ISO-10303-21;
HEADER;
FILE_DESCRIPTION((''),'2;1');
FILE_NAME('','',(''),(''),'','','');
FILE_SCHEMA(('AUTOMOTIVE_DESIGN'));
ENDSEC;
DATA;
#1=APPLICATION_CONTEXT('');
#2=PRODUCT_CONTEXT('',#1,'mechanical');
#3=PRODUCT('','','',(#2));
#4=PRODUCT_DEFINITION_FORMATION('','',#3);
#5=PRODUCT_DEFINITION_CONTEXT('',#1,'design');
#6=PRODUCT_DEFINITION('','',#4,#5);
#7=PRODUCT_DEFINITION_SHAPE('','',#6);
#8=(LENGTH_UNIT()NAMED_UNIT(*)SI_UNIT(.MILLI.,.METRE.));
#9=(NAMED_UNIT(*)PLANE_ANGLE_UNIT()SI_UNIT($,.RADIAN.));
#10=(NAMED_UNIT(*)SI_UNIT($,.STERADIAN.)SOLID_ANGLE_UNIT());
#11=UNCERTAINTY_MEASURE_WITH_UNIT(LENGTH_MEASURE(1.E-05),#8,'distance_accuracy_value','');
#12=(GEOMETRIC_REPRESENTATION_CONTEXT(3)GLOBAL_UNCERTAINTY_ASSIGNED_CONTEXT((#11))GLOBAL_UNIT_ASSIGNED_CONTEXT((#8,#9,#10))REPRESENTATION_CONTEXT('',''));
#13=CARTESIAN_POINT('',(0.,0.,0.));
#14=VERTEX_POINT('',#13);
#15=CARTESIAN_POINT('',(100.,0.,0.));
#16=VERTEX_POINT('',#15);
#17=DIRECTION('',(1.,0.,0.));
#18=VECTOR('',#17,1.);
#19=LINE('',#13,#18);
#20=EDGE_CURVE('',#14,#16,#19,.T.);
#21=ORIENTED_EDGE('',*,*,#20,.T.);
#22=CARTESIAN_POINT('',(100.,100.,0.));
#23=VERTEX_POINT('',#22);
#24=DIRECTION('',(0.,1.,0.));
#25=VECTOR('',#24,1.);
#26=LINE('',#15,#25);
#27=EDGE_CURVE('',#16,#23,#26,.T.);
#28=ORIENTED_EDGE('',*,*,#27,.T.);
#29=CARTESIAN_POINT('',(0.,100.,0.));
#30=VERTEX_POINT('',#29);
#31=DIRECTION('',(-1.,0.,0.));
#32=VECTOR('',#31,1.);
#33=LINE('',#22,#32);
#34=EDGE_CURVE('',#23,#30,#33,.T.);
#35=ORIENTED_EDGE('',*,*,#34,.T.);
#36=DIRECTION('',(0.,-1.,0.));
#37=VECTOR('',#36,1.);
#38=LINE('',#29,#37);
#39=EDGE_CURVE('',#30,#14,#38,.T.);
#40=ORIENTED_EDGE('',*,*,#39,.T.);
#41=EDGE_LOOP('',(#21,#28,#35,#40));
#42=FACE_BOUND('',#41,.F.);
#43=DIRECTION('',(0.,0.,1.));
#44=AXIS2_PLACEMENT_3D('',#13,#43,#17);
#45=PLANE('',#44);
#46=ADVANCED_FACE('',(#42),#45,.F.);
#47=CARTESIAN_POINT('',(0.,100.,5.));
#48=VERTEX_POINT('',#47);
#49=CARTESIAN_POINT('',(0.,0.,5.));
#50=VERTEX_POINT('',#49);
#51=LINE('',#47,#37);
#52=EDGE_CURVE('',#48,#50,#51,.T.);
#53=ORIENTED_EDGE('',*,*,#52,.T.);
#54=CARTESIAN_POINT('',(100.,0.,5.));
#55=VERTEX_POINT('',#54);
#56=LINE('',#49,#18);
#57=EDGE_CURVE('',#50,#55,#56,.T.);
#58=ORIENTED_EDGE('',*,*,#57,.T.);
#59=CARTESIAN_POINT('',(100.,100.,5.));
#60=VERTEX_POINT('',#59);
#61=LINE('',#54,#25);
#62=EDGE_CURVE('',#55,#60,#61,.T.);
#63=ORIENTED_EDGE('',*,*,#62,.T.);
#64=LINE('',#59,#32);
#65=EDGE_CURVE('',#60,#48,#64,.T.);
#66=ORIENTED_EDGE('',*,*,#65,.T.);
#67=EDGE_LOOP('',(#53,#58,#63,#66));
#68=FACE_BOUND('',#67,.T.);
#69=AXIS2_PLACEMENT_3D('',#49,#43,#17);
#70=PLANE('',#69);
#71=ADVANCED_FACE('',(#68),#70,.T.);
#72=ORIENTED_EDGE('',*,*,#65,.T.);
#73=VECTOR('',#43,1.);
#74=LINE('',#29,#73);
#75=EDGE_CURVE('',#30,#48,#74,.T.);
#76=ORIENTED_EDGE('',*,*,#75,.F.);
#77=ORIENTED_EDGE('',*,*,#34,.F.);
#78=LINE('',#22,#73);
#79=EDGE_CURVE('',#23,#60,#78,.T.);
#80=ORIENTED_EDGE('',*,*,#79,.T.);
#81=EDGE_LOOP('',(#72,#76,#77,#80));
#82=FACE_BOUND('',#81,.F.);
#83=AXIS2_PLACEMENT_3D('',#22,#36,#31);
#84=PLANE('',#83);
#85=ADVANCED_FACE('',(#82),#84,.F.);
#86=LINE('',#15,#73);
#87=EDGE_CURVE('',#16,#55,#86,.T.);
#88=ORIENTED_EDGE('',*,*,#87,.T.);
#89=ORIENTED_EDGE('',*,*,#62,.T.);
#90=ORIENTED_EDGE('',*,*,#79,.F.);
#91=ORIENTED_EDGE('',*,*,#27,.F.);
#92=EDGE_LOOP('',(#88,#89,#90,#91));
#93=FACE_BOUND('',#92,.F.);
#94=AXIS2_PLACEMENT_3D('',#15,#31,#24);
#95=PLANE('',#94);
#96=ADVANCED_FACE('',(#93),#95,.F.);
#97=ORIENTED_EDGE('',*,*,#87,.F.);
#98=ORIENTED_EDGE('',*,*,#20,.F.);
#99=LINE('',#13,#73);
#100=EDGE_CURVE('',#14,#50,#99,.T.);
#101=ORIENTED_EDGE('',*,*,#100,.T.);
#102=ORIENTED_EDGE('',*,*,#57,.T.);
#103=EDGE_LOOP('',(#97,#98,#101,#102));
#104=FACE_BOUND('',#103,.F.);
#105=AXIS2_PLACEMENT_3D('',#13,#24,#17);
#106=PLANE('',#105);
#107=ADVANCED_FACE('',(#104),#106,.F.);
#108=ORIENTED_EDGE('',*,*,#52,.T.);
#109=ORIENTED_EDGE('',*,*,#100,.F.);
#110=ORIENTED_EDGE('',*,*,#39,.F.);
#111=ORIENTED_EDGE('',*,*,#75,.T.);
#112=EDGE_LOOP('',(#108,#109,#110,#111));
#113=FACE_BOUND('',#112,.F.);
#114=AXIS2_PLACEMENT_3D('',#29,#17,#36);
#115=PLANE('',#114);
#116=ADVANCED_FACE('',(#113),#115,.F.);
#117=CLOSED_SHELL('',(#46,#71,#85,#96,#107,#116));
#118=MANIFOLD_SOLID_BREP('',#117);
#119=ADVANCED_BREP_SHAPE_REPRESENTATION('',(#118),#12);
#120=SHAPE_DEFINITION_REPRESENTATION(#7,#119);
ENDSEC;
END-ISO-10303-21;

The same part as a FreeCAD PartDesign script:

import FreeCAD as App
import Part
import Sketcher
from FreeCAD import Vector
Q = App.Units.Quantity


def add_polygon(sketch, points):
    """Adds a closed chain of lines whose ends are joined by coincident constraints."""
    first, n = sketch.GeometryCount, len(points)
    for a, b in zip(points, points[1:] + points[:1]):
        sketch.addGeometry(Part.LineSegment(App.Vector(*a, 0), App.Vector(*b, 0)), False)
    for i in range(n):
        sketch.addConstraint(Sketcher.Constraint("Coincident", first + i, 2, first + (i + 1) % n, 1))

doc = App.newDocument("Part")
params = doc.addObject("Spreadsheet::Sheet", "Params")
for row, (alias, value) in enumerate([
    ("sketch1_width", "100 mm"),
    ("pad1_length", "5 mm"),
], start=1):
    params.set(f"A{row}", alias)
    params.set(f"B{row}", "=" + value)
    params.setAlias(f"B{row}", alias)

body = doc.addObject("PartDesign::Body", "Body")

# Sketch on XY plane
sketch1 = body.newObject("Sketcher::SketchObject", "Sketch")
sketch1.AttachmentSupport = (doc.getObject("XY_Plane"), [""])
sketch1.MapMode = "FlatFace"
add_polygon(sketch1, [(0, 100), (0, 0), (100, 0), (100, 100)])  # lines 0-3
sketch1.addConstraint([
    Sketcher.Constraint("Vertical", 0),
    Sketcher.Constraint("Horizontal", 1),
    Sketcher.Constraint("Vertical", 2),
    Sketcher.Constraint("Horizontal", 3),
    Sketcher.Constraint("Coincident", 0, 2, -1, 1),
    Sketcher.Constraint("Equal", 3, 0),
    Sketcher.Constraint("DistanceX", 1, 1, 1, 2, Q("100 mm")),
])
sketch1.setExpression("Constraints[10]", "Params.sketch1_width")
pad1 = body.newObject("PartDesign::Pad", "Pad")
pad1.Profile = sketch1
pad1.setExpression("Length", "Params.pad1_length")

doc.recompute()
